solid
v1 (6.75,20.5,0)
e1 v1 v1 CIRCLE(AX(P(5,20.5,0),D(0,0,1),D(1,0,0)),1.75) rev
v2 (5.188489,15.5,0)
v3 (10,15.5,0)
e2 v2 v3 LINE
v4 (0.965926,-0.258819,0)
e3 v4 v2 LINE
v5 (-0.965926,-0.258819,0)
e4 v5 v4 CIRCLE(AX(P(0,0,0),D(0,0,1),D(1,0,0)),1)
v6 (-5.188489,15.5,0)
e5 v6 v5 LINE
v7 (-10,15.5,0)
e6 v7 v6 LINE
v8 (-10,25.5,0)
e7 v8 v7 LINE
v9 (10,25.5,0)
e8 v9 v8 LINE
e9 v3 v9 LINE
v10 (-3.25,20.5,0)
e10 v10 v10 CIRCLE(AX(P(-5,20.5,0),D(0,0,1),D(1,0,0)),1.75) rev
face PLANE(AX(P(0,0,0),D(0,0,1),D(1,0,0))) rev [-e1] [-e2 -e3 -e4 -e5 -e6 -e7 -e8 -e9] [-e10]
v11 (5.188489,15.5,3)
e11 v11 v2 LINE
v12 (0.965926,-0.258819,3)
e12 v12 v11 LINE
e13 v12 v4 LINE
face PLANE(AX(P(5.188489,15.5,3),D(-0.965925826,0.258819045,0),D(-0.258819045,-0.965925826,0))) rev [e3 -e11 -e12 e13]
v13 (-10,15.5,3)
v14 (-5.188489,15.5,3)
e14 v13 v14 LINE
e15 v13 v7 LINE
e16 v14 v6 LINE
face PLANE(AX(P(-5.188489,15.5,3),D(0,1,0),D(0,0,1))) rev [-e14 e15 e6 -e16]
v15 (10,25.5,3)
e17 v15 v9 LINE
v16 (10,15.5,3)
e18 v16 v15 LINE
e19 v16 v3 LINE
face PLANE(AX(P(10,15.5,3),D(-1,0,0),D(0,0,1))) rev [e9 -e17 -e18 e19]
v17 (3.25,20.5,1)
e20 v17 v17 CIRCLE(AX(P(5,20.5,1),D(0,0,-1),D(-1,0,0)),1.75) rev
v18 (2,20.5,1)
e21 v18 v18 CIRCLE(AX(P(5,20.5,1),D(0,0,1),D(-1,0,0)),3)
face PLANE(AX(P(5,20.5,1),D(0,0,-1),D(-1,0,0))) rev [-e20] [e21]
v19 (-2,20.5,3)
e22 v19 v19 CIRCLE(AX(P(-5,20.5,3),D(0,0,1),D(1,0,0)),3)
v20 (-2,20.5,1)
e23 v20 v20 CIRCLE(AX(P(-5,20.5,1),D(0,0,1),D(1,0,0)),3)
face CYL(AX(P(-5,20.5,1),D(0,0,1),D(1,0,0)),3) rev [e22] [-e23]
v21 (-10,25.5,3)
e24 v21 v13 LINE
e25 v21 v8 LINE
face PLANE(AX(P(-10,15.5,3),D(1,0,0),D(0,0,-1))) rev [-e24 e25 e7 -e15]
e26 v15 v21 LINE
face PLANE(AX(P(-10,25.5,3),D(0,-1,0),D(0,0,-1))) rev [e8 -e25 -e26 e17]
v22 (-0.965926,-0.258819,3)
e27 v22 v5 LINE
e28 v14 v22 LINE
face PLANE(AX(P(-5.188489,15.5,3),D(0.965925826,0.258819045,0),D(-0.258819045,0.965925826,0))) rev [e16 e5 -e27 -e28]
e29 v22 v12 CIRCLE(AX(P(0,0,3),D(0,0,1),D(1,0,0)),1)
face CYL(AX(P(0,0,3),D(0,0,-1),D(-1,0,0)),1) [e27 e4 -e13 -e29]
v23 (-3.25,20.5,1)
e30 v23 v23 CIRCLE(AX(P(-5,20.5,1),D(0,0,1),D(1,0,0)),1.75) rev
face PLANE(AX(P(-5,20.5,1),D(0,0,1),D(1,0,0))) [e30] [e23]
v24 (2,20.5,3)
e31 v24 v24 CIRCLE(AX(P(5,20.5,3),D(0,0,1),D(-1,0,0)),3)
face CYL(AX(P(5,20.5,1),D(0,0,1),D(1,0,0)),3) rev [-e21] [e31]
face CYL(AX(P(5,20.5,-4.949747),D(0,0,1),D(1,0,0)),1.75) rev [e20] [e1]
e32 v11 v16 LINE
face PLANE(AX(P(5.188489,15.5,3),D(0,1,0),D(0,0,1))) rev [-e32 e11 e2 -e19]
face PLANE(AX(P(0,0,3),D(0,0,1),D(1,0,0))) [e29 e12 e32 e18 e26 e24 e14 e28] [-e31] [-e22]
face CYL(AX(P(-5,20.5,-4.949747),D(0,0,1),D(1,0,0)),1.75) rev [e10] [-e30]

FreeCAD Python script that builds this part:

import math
import FreeCAD as App
import Part
import Sketcher
from FreeCAD import Vector
Q = App.Units.Quantity

doc = App.newDocument("Part")
body = doc.addObject("PartDesign::Body", "Body")

# Sketch on XY plane
sketch1 = body.newObject("Sketcher::SketchObject", "Sketch")
sketch1.AttachmentSupport = (doc.getObject("XY_Plane"), [""])
sketch1.MapMode = "FlatFace"
sketch1.addGeometry([
    Part.LineSegment(Vector(-5.2, 15.5, 0), Vector(-1, -0.3, 0)),  # 0
    Part.ArcOfCircle(Part.Circle(Vector(0, 0, 0), Vector(0, 0, 1), 1), math.radians(-165), math.radians(-15)),  # 1
    Part.LineSegment(Vector(1, -0.3, 0), Vector(5.2, 15.5, 0)),  # 2
    Part.LineSegment(Vector(5.2, 15.5, 0), Vector(10, 15.5, 0)),  # 3
    Part.LineSegment(Vector(10, 15.5, 0), Vector(10, 25.5, 0)),  # 4
    Part.LineSegment(Vector(10, 25.5, 0), Vector(-10, 25.5, 0)),  # 5
    Part.LineSegment(Vector(-10, 25.5, 0), Vector(-10, 15.5, 0)),  # 6
    Part.LineSegment(Vector(-10, 15.5, 0), Vector(-5.2, 15.5, 0)),  # 7
], False)
sketch1.addConstraint([
    Sketcher.Constraint("Tangent", 0, 2, 1, 1),
    Sketcher.Constraint("Tangent", 1, 2, 2, 1),
    Sketcher.Constraint("Coincident", 2, 2, 3, 1),
    Sketcher.Constraint("Coincident", 3, 2, 4, 1),
    Sketcher.Constraint("Coincident", 4, 2, 5, 1),
    Sketcher.Constraint("Coincident", 5, 2, 6, 1),
    Sketcher.Constraint("Coincident", 6, 2, 7, 1),
    Sketcher.Constraint("Coincident", 7, 2, 0, 1),
    Sketcher.Constraint("Horizontal", 3),
    Sketcher.Constraint("Vertical", 4),
    Sketcher.Constraint("Horizontal", 5),
    Sketcher.Constraint("Vertical", 6),
    Sketcher.Constraint("Horizontal", 7),
    Sketcher.Constraint("Coincident", 1, 3, -1, 1),
    Sketcher.Constraint("Symmetric", 3, 2, 6, 2, -2),
    Sketcher.Constraint("Horizontal", 0, 2, 1, 2),
    Sketcher.Constraint("Radius", 1, 1.0),
    Sketcher.Constraint("DistanceX", 5, 2, 5, 1, 20.0),
    Sketcher.Constraint("DistanceY", 4, 1, 4, 2, 10.0),
    Sketcher.Constraint("Angle", 0, Q("-75 deg")),
    Sketcher.Constraint("DistanceY", -1, 1, 2, 2, 15.5),
])
pad1 = body.newObject("PartDesign::Pad", "Pad")
pad1.Profile = sketch1
pad1.Length = 3

# Sketch on XY plane
sketch2 = body.newObject("Sketcher::SketchObject", "Sketch001")
sketch2.AttachmentSupport = (doc.getObject("XY_Plane"), [""])
sketch2.MapMode = "FlatFace"
sketch2.AttachmentOffset = App.Placement(Vector(0, 0, 3), App.Rotation())
sketch2.addGeometry([
    Part.Circle(Vector(-5, 20.5, 0), Vector(0, 0, 1), 1.8),
    Part.Circle(Vector(5, 20.5, 0), Vector(0, 0, 1), 1.8),
], False)
sketch2.addConstraint([
    Sketcher.Constraint("Equal", 0, 1),
    Sketcher.Constraint("Symmetric", 0, 3, 1, 3, -2),
    Sketcher.Constraint("Diameter", 0, 3.5),
    Sketcher.Constraint("DistanceX", 0, 3, -1, 1, 5.0),
    Sketcher.Constraint("DistanceY", -1, 1, 0, 3, 20.5),
])
pocket1 = body.newObject("PartDesign::Pocket", "Pocket")
pocket1.Profile = sketch2
pocket1.Length = 3

# Sketch on XY plane
sketch3 = body.newObject("Sketcher::SketchObject", "Sketch002")
sketch3.AttachmentSupport = (doc.getObject("XY_Plane"), [""])
sketch3.MapMode = "FlatFace"
sketch3.AttachmentOffset = App.Placement(Vector(0, 0, 3), App.Rotation())
sketch3.addGeometry([
    Part.Circle(Vector(-5, 20.5, 0), Vector(0, 0, 1), 3),
    Part.Circle(Vector(5, 20.5, 0), Vector(0, 0, 1), 3),
], False)
sketch3.addConstraint([
    Sketcher.Constraint("Equal", 0, 1),
    Sketcher.Constraint("Symmetric", 0, 3, 1, 3, -2),
    Sketcher.Constraint("Diameter", 0, 6.0),
    Sketcher.Constraint("DistanceX", 0, 3, -1, 1, 5.0),
    Sketcher.Constraint("DistanceY", -1, 1, 0, 3, 20.5),
])
pocket2 = body.newObject("PartDesign::Pocket", "Pocket001")
pocket2.Profile = sketch3
pocket2.Length = 2

doc.recompute()
